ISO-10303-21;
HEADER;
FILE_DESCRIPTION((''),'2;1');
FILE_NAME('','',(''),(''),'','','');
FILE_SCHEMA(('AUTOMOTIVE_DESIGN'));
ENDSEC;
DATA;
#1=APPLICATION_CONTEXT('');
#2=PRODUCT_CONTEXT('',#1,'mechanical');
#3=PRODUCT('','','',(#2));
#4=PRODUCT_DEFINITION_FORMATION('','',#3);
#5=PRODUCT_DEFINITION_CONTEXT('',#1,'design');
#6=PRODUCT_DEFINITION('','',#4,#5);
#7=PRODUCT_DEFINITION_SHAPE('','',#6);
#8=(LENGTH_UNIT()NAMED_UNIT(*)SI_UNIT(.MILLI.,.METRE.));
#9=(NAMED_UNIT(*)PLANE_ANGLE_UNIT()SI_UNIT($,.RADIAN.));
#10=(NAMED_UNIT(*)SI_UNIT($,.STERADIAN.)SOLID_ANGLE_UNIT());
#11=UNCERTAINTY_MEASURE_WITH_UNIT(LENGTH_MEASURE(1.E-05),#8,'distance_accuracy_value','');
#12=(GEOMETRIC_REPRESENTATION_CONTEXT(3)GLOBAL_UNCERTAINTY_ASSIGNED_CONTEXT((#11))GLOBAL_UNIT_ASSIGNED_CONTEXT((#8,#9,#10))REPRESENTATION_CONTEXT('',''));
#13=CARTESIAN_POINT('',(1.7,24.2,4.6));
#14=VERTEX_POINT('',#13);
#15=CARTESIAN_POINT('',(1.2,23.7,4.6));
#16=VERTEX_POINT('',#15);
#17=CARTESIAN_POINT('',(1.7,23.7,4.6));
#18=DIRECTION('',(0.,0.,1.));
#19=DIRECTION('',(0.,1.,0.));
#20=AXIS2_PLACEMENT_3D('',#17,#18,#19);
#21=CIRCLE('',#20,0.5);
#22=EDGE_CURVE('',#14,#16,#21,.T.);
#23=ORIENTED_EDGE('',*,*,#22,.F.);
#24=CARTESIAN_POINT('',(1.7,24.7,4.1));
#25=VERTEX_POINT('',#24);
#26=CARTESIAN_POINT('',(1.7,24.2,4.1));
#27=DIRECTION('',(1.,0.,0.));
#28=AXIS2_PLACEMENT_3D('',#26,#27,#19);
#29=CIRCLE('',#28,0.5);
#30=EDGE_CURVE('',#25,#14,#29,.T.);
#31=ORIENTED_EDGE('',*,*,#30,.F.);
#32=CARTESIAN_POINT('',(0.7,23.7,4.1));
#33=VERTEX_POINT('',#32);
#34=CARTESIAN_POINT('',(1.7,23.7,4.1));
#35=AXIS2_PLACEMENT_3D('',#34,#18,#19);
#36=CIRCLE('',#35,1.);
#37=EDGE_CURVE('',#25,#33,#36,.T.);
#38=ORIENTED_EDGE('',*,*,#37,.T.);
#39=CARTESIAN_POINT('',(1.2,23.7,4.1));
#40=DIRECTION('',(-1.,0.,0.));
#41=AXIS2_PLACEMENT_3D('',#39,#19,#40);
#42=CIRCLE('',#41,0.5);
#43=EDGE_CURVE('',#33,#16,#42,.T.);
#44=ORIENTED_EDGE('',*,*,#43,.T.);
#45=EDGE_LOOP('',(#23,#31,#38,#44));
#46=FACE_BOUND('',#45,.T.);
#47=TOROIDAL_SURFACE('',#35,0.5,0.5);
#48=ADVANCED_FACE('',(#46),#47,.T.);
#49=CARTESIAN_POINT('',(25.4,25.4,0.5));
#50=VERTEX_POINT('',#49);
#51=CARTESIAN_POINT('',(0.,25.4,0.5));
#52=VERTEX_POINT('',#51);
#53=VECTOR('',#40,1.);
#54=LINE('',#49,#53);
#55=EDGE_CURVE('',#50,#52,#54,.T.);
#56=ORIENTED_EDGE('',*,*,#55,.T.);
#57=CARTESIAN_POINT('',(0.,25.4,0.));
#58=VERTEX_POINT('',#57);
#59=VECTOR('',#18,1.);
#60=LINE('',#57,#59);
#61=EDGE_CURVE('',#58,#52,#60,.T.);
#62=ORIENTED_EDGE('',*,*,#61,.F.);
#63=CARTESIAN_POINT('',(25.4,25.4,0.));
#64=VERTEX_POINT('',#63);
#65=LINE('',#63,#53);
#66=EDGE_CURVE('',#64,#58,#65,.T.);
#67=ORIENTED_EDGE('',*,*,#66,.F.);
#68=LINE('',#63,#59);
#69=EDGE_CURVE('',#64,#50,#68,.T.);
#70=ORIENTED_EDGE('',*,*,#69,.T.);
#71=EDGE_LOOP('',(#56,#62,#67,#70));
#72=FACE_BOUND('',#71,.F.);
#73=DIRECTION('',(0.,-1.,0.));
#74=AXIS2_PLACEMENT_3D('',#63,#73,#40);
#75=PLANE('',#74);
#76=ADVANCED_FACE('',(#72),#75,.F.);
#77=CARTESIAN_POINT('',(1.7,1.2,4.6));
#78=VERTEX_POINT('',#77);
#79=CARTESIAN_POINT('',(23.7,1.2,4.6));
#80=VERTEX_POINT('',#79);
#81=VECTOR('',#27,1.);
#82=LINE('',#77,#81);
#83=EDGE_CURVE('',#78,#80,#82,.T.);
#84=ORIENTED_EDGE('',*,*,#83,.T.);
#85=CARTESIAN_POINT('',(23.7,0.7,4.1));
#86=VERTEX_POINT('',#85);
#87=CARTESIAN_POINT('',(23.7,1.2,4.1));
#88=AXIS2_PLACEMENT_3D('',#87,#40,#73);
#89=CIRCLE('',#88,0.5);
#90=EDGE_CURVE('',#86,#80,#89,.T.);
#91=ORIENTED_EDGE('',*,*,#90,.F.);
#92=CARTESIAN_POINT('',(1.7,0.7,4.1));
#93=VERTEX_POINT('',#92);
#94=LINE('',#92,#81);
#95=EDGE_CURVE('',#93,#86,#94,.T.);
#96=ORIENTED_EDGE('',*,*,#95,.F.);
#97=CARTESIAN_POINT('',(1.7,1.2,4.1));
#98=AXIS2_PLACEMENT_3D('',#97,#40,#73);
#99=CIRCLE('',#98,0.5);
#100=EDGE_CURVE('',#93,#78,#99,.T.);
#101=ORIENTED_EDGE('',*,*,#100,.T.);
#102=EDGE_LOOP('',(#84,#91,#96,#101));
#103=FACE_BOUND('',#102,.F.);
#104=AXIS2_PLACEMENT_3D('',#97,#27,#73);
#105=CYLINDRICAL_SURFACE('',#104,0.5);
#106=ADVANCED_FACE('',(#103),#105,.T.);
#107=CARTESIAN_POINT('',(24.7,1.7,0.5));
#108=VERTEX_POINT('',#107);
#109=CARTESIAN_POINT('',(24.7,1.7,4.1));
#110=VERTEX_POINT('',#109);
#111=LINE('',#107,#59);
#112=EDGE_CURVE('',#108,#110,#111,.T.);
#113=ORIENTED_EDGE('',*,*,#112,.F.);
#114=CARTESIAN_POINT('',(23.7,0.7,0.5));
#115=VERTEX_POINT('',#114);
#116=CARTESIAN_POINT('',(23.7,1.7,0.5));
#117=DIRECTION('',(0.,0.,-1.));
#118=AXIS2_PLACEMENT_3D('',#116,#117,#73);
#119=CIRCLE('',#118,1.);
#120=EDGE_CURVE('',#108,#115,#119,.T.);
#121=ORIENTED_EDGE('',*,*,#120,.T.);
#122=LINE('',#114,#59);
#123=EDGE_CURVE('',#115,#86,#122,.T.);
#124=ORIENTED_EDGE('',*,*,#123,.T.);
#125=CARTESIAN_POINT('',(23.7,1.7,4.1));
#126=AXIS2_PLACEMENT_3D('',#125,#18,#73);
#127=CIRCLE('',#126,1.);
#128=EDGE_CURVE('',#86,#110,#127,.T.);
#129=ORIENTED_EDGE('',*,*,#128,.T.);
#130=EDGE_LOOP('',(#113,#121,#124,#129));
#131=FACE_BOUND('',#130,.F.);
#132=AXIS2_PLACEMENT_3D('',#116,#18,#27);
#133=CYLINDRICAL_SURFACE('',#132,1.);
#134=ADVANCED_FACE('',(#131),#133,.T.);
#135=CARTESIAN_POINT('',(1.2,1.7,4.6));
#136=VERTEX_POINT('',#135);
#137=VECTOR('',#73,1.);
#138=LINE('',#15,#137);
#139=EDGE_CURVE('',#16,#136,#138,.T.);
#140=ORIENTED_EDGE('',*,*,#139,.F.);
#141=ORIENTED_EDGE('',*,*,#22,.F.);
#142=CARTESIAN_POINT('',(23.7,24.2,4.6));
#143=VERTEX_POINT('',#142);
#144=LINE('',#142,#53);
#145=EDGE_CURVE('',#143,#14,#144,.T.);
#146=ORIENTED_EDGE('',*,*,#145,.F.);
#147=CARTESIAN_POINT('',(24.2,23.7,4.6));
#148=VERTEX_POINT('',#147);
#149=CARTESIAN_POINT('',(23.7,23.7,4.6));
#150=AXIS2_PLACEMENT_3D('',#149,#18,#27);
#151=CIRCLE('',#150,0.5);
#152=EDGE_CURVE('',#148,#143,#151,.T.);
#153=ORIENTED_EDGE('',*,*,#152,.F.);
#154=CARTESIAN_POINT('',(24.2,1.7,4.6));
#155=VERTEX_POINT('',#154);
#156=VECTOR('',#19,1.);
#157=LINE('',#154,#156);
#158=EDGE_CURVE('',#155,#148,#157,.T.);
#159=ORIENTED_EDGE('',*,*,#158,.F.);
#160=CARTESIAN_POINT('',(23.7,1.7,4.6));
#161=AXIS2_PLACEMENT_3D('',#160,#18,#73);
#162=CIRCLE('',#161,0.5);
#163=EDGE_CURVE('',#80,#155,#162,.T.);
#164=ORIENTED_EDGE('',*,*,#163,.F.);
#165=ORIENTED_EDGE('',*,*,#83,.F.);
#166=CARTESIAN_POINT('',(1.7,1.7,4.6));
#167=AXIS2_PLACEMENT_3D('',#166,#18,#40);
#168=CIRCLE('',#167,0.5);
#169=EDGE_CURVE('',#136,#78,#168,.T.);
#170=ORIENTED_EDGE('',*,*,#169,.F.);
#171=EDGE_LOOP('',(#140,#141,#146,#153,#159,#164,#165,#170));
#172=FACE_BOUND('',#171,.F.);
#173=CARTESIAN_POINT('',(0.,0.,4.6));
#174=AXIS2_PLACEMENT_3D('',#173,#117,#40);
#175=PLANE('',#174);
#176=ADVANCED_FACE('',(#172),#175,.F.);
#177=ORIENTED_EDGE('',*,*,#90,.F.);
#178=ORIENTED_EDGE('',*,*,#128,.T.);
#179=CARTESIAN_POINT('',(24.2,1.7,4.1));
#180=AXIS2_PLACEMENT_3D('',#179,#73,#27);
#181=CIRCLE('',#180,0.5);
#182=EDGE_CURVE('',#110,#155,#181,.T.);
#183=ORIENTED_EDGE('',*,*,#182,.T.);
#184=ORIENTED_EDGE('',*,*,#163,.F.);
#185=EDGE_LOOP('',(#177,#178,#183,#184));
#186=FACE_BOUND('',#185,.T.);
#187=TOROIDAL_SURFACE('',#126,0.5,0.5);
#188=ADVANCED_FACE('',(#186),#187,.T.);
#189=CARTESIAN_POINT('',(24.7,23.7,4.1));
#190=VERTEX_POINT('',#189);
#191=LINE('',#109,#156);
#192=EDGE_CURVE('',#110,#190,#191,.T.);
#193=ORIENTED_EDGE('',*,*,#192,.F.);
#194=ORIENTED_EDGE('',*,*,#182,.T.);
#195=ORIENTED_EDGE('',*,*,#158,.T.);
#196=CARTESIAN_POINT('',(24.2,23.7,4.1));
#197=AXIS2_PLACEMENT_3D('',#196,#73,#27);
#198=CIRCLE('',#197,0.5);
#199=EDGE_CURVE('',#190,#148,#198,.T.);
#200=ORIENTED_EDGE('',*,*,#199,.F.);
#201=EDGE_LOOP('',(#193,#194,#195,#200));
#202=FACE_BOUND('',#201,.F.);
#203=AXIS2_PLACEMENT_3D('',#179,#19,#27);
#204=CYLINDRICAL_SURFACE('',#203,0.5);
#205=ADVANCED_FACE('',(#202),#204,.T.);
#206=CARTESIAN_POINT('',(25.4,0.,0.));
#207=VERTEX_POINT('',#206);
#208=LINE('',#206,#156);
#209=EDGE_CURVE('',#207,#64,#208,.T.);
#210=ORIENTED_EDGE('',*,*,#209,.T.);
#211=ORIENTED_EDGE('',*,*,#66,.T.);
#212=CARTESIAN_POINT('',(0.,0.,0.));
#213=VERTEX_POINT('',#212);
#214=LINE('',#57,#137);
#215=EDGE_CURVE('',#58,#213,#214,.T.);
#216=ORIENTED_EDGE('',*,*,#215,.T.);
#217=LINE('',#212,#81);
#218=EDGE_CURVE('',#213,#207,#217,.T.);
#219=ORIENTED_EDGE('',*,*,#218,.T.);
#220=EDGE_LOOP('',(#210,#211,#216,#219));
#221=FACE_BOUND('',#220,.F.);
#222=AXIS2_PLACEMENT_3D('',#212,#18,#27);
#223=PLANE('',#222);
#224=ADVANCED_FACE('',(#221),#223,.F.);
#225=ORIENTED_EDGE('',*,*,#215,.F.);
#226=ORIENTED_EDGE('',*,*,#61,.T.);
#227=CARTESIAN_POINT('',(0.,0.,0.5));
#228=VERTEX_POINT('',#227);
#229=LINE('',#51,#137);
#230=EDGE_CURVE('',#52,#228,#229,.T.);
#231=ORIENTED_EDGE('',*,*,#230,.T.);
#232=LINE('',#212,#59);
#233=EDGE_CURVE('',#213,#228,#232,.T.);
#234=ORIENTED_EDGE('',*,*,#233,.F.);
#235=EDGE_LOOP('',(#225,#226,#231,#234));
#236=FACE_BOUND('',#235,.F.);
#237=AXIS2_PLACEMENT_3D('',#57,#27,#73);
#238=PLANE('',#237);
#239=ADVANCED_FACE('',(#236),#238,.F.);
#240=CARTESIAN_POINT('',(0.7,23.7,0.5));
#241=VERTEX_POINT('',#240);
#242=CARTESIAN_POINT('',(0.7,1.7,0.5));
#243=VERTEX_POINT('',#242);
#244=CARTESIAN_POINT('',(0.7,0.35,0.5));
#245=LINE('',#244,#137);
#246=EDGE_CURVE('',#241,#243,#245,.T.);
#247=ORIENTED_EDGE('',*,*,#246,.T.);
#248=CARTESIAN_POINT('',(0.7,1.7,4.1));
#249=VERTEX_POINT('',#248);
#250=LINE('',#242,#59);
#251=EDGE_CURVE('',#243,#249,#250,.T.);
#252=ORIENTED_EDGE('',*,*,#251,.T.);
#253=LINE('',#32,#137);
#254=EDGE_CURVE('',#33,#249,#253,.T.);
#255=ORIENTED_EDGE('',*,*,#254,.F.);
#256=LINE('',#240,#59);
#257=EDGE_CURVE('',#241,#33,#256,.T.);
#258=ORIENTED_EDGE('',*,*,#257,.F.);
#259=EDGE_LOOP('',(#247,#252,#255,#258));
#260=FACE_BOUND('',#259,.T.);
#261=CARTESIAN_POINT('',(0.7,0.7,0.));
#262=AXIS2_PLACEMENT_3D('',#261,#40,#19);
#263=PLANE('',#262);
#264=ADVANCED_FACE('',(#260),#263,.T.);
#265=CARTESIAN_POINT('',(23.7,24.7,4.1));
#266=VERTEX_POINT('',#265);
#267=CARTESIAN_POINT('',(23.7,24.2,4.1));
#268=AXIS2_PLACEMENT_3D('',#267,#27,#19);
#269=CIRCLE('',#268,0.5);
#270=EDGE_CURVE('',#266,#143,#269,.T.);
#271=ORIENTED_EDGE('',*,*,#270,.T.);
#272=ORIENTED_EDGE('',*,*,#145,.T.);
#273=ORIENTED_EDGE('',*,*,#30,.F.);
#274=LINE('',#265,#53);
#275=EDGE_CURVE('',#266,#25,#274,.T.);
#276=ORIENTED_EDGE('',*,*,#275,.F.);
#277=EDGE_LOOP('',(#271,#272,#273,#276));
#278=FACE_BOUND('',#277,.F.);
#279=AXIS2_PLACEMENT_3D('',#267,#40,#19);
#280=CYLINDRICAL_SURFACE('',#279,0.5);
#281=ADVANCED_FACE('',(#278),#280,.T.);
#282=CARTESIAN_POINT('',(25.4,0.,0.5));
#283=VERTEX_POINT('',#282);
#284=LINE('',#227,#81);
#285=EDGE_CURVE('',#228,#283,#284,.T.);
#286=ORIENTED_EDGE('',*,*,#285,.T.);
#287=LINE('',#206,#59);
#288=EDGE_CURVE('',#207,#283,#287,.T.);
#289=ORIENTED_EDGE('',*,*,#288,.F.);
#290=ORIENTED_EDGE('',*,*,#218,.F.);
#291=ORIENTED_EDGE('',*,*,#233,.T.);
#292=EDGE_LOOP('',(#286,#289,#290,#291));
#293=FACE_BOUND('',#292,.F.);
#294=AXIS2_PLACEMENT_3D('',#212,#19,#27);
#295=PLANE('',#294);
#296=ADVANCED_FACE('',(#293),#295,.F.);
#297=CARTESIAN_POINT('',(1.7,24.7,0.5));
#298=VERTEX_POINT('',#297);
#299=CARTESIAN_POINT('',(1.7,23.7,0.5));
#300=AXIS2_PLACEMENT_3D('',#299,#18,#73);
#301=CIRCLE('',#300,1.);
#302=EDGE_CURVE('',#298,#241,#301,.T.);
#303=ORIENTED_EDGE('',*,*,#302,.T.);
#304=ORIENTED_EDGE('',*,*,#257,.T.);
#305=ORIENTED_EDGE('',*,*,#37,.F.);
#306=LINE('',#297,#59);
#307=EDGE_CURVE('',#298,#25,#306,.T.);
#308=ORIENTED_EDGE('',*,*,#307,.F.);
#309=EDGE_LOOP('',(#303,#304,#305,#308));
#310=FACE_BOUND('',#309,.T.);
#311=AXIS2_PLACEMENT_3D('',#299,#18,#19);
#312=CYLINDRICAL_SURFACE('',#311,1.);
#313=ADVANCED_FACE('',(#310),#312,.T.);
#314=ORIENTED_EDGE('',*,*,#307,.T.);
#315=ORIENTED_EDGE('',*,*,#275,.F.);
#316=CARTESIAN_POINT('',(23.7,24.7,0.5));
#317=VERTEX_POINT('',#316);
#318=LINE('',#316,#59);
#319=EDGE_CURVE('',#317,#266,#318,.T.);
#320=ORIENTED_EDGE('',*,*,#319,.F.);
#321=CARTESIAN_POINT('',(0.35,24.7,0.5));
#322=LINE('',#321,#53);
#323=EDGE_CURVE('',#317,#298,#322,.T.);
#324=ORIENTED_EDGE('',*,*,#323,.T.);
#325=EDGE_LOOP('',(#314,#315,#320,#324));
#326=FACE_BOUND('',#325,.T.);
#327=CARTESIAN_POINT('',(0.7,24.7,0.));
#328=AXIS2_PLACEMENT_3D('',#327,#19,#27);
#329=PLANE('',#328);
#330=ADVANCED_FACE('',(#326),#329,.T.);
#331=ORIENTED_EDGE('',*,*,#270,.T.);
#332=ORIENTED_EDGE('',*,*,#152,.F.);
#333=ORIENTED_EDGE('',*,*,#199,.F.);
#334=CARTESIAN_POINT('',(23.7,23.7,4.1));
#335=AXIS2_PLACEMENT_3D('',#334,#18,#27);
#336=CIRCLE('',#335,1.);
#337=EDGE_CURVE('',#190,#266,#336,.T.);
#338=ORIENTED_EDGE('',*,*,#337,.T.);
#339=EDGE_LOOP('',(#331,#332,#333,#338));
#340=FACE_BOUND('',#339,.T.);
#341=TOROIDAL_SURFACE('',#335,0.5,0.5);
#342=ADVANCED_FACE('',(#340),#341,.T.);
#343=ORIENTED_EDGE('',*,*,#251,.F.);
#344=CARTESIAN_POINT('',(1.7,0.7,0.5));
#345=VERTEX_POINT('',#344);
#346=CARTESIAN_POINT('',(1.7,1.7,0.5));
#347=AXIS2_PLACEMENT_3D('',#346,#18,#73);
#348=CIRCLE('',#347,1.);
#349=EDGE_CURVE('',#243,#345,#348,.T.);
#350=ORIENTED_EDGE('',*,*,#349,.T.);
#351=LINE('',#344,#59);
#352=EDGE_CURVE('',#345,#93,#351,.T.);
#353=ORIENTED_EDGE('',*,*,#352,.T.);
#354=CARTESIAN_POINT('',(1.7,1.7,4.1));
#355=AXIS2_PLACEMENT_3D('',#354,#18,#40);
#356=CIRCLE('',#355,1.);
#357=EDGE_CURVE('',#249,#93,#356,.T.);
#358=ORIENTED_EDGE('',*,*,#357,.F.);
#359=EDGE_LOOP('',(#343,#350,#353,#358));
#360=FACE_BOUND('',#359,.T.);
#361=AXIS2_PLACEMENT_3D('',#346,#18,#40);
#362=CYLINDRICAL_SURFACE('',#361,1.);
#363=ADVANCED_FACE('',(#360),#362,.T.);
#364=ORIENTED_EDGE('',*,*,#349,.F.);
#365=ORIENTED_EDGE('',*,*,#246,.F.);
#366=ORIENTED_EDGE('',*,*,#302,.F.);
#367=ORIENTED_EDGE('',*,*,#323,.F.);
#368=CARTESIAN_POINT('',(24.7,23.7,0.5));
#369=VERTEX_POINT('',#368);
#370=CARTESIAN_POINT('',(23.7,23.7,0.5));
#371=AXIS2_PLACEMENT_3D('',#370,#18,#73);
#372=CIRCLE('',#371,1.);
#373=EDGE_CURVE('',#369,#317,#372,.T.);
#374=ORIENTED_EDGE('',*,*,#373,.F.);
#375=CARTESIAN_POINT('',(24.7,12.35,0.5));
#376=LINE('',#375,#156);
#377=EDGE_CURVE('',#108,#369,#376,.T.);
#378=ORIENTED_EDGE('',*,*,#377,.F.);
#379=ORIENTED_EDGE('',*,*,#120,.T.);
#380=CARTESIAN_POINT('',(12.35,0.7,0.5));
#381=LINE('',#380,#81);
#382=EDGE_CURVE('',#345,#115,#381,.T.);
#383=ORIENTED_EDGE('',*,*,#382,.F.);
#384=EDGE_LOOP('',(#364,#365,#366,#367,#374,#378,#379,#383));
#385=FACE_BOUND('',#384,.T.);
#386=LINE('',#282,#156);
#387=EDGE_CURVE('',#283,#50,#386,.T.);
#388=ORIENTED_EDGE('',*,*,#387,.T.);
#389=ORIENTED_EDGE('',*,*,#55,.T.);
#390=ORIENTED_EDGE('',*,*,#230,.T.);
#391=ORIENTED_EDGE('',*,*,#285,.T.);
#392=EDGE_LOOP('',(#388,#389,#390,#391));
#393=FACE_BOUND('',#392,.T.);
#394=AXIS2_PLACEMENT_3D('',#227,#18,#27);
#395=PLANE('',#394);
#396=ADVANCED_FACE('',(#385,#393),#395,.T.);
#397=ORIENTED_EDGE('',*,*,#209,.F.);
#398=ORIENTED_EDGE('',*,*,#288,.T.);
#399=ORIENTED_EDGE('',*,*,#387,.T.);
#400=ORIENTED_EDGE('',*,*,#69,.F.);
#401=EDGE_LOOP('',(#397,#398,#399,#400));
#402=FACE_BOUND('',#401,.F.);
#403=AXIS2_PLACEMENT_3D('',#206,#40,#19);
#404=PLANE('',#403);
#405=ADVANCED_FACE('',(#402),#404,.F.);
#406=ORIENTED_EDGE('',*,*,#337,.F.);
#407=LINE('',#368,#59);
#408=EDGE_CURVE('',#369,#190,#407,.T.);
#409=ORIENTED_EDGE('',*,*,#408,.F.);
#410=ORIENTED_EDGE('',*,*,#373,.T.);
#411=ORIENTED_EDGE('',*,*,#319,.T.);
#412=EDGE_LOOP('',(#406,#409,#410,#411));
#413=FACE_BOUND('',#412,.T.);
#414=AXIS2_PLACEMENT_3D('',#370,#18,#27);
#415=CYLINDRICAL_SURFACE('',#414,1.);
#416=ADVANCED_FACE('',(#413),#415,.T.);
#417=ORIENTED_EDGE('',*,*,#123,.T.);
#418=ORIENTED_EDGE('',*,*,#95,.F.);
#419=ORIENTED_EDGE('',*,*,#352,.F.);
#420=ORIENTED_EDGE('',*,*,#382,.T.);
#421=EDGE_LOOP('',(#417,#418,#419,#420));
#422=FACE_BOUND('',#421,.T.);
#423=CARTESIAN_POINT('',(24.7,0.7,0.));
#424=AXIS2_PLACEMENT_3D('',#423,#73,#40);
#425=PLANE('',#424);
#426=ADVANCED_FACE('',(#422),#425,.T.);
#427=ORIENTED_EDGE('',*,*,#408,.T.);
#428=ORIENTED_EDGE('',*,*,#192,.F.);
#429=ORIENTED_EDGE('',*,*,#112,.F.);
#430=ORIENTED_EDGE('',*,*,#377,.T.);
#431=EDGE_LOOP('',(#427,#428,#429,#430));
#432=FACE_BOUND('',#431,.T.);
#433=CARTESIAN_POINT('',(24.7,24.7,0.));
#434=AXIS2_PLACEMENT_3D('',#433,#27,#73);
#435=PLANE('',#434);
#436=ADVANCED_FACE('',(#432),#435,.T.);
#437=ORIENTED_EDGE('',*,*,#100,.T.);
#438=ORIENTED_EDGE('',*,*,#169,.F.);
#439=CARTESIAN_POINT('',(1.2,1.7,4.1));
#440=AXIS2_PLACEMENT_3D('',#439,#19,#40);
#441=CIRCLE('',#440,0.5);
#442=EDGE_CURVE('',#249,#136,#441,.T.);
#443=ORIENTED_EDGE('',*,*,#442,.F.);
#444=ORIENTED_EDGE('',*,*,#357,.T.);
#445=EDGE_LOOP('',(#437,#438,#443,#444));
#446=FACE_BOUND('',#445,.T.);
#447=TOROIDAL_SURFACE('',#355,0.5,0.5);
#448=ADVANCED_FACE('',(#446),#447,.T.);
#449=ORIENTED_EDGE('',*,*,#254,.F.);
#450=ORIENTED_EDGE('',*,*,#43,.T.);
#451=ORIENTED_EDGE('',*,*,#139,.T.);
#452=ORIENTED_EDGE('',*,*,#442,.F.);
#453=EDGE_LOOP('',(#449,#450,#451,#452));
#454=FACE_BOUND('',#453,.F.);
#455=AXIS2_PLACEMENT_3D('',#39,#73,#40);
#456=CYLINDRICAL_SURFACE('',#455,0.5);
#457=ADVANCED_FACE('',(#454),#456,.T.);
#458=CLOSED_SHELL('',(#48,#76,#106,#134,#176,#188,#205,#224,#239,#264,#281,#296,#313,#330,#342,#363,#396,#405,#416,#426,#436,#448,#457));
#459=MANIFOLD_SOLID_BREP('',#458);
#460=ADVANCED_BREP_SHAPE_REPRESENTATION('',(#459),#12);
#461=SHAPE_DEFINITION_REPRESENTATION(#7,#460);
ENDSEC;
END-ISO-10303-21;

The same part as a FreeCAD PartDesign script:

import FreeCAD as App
import Part
import Sketcher
Q = App.Units.Quantity


def edges_at(feature, points):
    """Names of the edges that pass closest to the given points."""
    edges = feature.Shape.Edges
    near = lambda p: min(range(len(edges)), key=lambda i: edges[i].distToShape(Part.Vertex(*p))[0])
    return sorted({f"Edge{near(p) + 1}" for p in points})

doc = App.newDocument("Part")
body = doc.addObject("PartDesign::Body", "Body")

# Sketch on XY plane
sketch1 = body.newObject("Sketcher::SketchObject", "Sketch")
sketch1.AttachmentSupport = (doc.getObject("XY_Plane"), [""])
sketch1.MapMode = "FlatFace"
sketch1.addGeometry([
    Part.LineSegment(App.Vector(0, 25, 0), App.Vector(0, 0, 0)),
    Part.LineSegment(App.Vector(0, 0, 0), App.Vector(25, 0, 0)),
    Part.LineSegment(App.Vector(25, 0, 0), App.Vector(25, 25, 0)),
    Part.LineSegment(App.Vector(25, 25, 0), App.Vector(0, 25, 0)),
], False)
sketch1.addConstraint([
    Sketcher.Constraint("Coincident", 0, 2, 1, 1),
    Sketcher.Constraint("Coincident", 1, 2, 2, 1),
    Sketcher.Constraint("Coincident", 2, 2, 3, 1),
    Sketcher.Constraint("Coincident", 3, 2, 0, 1),
    Sketcher.Constraint("Vertical", 0),
    Sketcher.Constraint("Horizontal", 1),
    Sketcher.Constraint("Vertical", 2),
    Sketcher.Constraint("Horizontal", 3),
    Sketcher.Constraint("Coincident", 0, 2, -1, 1),
    Sketcher.Constraint("Equal", 3, 0),
    Sketcher.Constraint("DistanceX", 1, 1, 1, 2, Q("25.4 mm")),
])
pad1 = body.newObject("PartDesign::Pad", "Pad")
pad1.Profile = sketch1
pad1.Length = 0.5

# Sketch on XY plane
sketch2 = body.newObject("Sketcher::SketchObject", "Sketch001")
sketch2.AttachmentSupport = (doc.getObject("XY_Plane"), [""])
sketch2.MapMode = "FlatFace"
sketch2.addGeometry([
    Part.LineSegment(App.Vector(25, 25, 0), App.Vector(25, 1, 0)),
    Part.LineSegment(App.Vector(25, 1, 0), App.Vector(1, 1, 0)),
    Part.LineSegment(App.Vector(1, 1, 0), App.Vector(1, 25, 0)),
    Part.LineSegment(App.Vector(1, 25, 0), App.Vector(25, 25, 0)),
], False)
sketch2.addConstraint([
    Sketcher.Constraint("Coincident", 0, 2, 1, 1),
    Sketcher.Constraint("Coincident", 1, 2, 2, 1),
    Sketcher.Constraint("Coincident", 2, 2, 3, 1),
    Sketcher.Constraint("Coincident", 3, 2, 0, 1),
    Sketcher.Constraint("Vertical", 0),
    Sketcher.Constraint("Horizontal", 1),
    Sketcher.Constraint("Vertical", 2),
    Sketcher.Constraint("Horizontal", 3),
    Sketcher.Constraint("Equal", 3, 0),
    Sketcher.Constraint("DistanceX", 1, 2, 1, 1, Q("24 mm")),
    Sketcher.Constraint("DistanceX", -1, 1, 0, 2, Q("24.7 mm")),
    Sketcher.Constraint("DistanceY", -1, 1, 0, 2, Q("0.7 mm")),
])
pad2 = body.newObject("PartDesign::Pad", "Pad001")
pad2.Profile = sketch2
pad2.Length = 4.6
doc.recompute()

fillet = body.newObject("PartDesign::Fillet", "Fillet")
fillet.Base = (pad2, edges_at(pad2, [
    (24.7, 24.7, 2.55),
    (0.7, 24.7, 2.55),
    (0.7, 0.7, 2.55),
    (24.7, 0.7, 2.55),
]))
fillet.Radius = 1
doc.recompute()

fillet2 = body.newObject("PartDesign::Fillet", "Fillet001")
fillet2.Base = (fillet, edges_at(fillet, [
    (24.407, 24.407, 4.6),
    (12.7, 24.7, 4.6),
    (0.993, 24.407, 4.6),
    (0.7, 12.7, 4.6),
    (0.993, 0.993, 4.6),
    (12.7, 0.7, 4.6),
    (24.407, 0.993, 4.6),
    (24.7, 12.7, 4.6),
]))
fillet2.Radius = 0.5

doc.recompute()
